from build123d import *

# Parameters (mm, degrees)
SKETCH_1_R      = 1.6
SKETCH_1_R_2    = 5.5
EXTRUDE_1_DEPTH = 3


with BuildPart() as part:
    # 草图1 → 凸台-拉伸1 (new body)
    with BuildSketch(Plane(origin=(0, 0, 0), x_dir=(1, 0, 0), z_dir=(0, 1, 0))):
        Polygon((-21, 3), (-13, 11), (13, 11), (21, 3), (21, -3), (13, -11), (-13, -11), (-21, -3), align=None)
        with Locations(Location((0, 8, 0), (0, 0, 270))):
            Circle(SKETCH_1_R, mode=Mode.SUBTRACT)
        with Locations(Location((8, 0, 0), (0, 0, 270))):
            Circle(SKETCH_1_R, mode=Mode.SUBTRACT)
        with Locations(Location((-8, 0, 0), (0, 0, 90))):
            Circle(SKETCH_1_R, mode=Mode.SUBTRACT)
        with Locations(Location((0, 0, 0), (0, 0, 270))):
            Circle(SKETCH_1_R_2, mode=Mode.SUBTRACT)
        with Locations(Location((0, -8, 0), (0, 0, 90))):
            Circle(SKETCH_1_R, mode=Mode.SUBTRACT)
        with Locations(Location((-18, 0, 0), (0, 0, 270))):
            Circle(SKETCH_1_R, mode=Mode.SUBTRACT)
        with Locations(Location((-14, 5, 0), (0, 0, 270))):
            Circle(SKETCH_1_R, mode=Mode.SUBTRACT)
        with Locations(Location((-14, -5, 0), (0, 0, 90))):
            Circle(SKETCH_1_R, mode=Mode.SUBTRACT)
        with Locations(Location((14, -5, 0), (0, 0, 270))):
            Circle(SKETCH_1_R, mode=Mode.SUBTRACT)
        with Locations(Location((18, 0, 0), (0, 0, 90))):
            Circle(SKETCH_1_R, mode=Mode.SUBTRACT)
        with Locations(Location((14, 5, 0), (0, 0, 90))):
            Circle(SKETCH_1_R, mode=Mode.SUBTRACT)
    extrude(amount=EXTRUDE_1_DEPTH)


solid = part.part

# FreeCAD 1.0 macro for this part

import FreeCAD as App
import Part
import Sketcher

doc = App.newDocument("Part")
body = doc.addObject("PartDesign::Body", "Body")

sketch1 = body.newObject("Sketcher::SketchObject", "Sketch")
sketch1.AttachmentSupport = (doc.getObject("XZ_Plane"), [""])
sketch1.MapMode = "FlatFace"
sketch1.addGeometry(Part.LineSegment(App.Vector(-13, -11, 0), App.Vector(-21, -3, 0)), False)
sketch1.addGeometry(Part.LineSegment(App.Vector(-21, -3, 0), App.Vector(-21, 3, 0)), False)
sketch1.addGeometry(Part.LineSegment(App.Vector(-21, 3, 0), App.Vector(-13, 11, 0)), False)
sketch1.addGeometry(Part.LineSegment(App.Vector(-13, 11, 0), App.Vector(13, 11, 0)), False)
sketch1.addGeometry(Part.LineSegment(App.Vector(13, 11, 0), App.Vector(21, 3, 0)), False)
sketch1.addGeometry(Part.LineSegment(App.Vector(21, 3, 0), App.Vector(21, -3, 0)), False)
sketch1.addGeometry(Part.LineSegment(App.Vector(21, -3, 0), App.Vector(13, -11, 0)), False)
sketch1.addGeometry(Part.LineSegment(App.Vector(13, -11, 0), App.Vector(-13, -11, 0)), False)
sketch1.addGeometry(Part.Circle(App.Vector(14, 5, 0), App.Vector(0, 0, 1), 1.6), False)
sketch1.addGeometry(Part.Circle(App.Vector(0, 8, 0), App.Vector(0, 0, 1), 1.6), False)
sketch1.addGeometry(Part.Circle(App.Vector(-14, 5, 0), App.Vector(0, 0, 1), 1.6), False)
sketch1.addGeometry(Part.Circle(App.Vector(18, 0, 0), App.Vector(0, 0, 1), 1.6), False)
sketch1.addGeometry(Part.Circle(App.Vector(8, 0, 0), App.Vector(0, 0, 1), 1.6), False)
sketch1.addGeometry(Part.Circle(App.Vector(14, -5, 0), App.Vector(0, 0, 1), 1.6), False)
sketch1.addGeometry(Part.Circle(App.Vector(0, 0, 0), App.Vector(0, 0, 1), 5.5), False)
sketch1.addGeometry(Part.Circle(App.Vector(-8, 0, 0), App.Vector(0, 0, 1), 1.6), False)
sketch1.addGeometry(Part.Circle(App.Vector(-18, 0, 0), App.Vector(0, 0, 1), 1.6), False)
sketch1.addGeometry(Part.Circle(App.Vector(0, -8, 0), App.Vector(0, 0, 1), 1.6), False)
sketch1.addGeometry(Part.Circle(App.Vector(-14, -5, 0), App.Vector(0, 0, 1), 1.6), False)
sketch1.addConstraint(Sketcher.Constraint("Coincident", 0, 2, 1, 1))
sketch1.addConstraint(Sketcher.Constraint("Coincident", 1, 2, 2, 1))
sketch1.addConstraint(Sketcher.Constraint("Coincident", 2, 2, 3, 1))
sketch1.addConstraint(Sketcher.Constraint("Coincident", 3, 2, 4, 1))
sketch1.addConstraint(Sketcher.Constraint("Coincident", 4, 2, 5, 1))
sketch1.addConstraint(Sketcher.Constraint("Coincident", 5, 2, 6, 1))
sketch1.addConstraint(Sketcher.Constraint("Coincident", 6, 2, 7, 1))
sketch1.addConstraint(Sketcher.Constraint("Coincident", 7, 2, 0, 1))
sketch1.addConstraint(Sketcher.Constraint("Vertical", 1))
sketch1.addConstraint(Sketcher.Constraint("Horizontal", 3))
sketch1.addConstraint(Sketcher.Constraint("Vertical", 5))
sketch1.addConstraint(Sketcher.Constraint("Horizontal", 7))
sketch1.addConstraint(Sketcher.Constraint("Coincident", 14, 3, -1, 1))
sketch1.addConstraint(Sketcher.Constraint("Equal", 8, 9))
sketch1.addConstraint(Sketcher.Constraint("Equal", 9, 10))
sketch1.addConstraint(Sketcher.Constraint("Equal", 10, 11))
sketch1.addConstraint(Sketcher.Constraint("Equal", 11, 12))
sketch1.addConstraint(Sketcher.Constraint("Equal", 12, 13))
sketch1.addConstraint(Sketcher.Constraint("Equal", 13, 15))
sketch1.addConstraint(Sketcher.Constraint("Equal", 15, 16))
sketch1.addConstraint(Sketcher.Constraint("Equal", 16, 17))
sketch1.addConstraint(Sketcher.Constraint("Equal", 17, 18))
sketch1.addConstraint(Sketcher.Constraint("Symmetric", 10, 3, 13, 3, -1, 1))
sketch1.addConstraint(Sketcher.Constraint("Symmetric", 12, 3, 15, 3, -1, 1))
sketch1.addConstraint(Sketcher.Constraint("Symmetric", 11, 3, 16, 3, -1, 1))
sketch1.addConstraint(Sketcher.Constraint("Symmetric", 9, 3, 17, 3, -1, 1))
sketch1.addConstraint(Sketcher.Constraint("Symmetric", 8, 3, 18, 3, -1, 1))
sketch1.addConstraint(Sketcher.Constraint("Symmetric", 0, 2, 4, 2, -1, 1))
sketch1.addConstraint(Sketcher.Constraint("Symmetric", 2, 2, 6, 2, -1, 1))
sketch1.addConstraint(Sketcher.Constraint("Symmetric", 8, 3, 10, 3, -2))
sketch1.addConstraint(Sketcher.Constraint("PointOnObject", 9, 3, -2))
sketch1.addConstraint(Sketcher.Constraint("PointOnObject", 11, 3, -1))
sketch1.addConstraint(Sketcher.Constraint("PointOnObject", 12, 3, -1))
sketch1.addConstraint(Sketcher.Constraint("Perpendicular", 0, 2))
sketch1.addConstraint(Sketcher.Constraint("Perpendicular", 2, 4))
sketch1.addConstraint(Sketcher.Constraint("Perpendicular", 4, 6))
sketch1.addConstraint(Sketcher.Constraint("Horizontal", 1, 2, 4, 2))
sketch1.addConstraint(Sketcher.Constraint("Vertical", 3, 2, 6, 2))
sketch1.addConstraint(Sketcher.Constraint("Diameter", 14, 11.0))
sketch1.addConstraint(Sketcher.Constraint("Diameter", 8, 3.2))
sketch1.addConstraint(Sketcher.Constraint("DistanceX", 3, 1, 3, 2, 26.0))
sketch1.addConstraint(Sketcher.Constraint("DistanceY", 1, 1, 1, 2, 6.0))
sketch1.addConstraint(Sketcher.Constraint("DistanceX", -1, 1, 8, 3, 14.0))
sketch1.addConstraint(Sketcher.Constraint("DistanceY", -1, 1, 8, 3, 5.0))
sketch1.addConstraint(Sketcher.Constraint("DistanceY", -1, 1, 9, 3, 8.0))
sketch1.addConstraint(Sketcher.Constraint("DistanceX", -1, 1, 11, 3, 18.0))
sketch1.addConstraint(Sketcher.Constraint("DistanceX", -1, 1, 12, 3, 8.0))
sketch1.addConstraint(Sketcher.Constraint("DistanceX", 0, 2, -1, 1, 21.0))
pad1 = body.newObject("PartDesign::Pad", "Pad")
pad1.Profile = sketch1
pad1.Length = 3
pad1.Reversed = True

doc.recompute()
